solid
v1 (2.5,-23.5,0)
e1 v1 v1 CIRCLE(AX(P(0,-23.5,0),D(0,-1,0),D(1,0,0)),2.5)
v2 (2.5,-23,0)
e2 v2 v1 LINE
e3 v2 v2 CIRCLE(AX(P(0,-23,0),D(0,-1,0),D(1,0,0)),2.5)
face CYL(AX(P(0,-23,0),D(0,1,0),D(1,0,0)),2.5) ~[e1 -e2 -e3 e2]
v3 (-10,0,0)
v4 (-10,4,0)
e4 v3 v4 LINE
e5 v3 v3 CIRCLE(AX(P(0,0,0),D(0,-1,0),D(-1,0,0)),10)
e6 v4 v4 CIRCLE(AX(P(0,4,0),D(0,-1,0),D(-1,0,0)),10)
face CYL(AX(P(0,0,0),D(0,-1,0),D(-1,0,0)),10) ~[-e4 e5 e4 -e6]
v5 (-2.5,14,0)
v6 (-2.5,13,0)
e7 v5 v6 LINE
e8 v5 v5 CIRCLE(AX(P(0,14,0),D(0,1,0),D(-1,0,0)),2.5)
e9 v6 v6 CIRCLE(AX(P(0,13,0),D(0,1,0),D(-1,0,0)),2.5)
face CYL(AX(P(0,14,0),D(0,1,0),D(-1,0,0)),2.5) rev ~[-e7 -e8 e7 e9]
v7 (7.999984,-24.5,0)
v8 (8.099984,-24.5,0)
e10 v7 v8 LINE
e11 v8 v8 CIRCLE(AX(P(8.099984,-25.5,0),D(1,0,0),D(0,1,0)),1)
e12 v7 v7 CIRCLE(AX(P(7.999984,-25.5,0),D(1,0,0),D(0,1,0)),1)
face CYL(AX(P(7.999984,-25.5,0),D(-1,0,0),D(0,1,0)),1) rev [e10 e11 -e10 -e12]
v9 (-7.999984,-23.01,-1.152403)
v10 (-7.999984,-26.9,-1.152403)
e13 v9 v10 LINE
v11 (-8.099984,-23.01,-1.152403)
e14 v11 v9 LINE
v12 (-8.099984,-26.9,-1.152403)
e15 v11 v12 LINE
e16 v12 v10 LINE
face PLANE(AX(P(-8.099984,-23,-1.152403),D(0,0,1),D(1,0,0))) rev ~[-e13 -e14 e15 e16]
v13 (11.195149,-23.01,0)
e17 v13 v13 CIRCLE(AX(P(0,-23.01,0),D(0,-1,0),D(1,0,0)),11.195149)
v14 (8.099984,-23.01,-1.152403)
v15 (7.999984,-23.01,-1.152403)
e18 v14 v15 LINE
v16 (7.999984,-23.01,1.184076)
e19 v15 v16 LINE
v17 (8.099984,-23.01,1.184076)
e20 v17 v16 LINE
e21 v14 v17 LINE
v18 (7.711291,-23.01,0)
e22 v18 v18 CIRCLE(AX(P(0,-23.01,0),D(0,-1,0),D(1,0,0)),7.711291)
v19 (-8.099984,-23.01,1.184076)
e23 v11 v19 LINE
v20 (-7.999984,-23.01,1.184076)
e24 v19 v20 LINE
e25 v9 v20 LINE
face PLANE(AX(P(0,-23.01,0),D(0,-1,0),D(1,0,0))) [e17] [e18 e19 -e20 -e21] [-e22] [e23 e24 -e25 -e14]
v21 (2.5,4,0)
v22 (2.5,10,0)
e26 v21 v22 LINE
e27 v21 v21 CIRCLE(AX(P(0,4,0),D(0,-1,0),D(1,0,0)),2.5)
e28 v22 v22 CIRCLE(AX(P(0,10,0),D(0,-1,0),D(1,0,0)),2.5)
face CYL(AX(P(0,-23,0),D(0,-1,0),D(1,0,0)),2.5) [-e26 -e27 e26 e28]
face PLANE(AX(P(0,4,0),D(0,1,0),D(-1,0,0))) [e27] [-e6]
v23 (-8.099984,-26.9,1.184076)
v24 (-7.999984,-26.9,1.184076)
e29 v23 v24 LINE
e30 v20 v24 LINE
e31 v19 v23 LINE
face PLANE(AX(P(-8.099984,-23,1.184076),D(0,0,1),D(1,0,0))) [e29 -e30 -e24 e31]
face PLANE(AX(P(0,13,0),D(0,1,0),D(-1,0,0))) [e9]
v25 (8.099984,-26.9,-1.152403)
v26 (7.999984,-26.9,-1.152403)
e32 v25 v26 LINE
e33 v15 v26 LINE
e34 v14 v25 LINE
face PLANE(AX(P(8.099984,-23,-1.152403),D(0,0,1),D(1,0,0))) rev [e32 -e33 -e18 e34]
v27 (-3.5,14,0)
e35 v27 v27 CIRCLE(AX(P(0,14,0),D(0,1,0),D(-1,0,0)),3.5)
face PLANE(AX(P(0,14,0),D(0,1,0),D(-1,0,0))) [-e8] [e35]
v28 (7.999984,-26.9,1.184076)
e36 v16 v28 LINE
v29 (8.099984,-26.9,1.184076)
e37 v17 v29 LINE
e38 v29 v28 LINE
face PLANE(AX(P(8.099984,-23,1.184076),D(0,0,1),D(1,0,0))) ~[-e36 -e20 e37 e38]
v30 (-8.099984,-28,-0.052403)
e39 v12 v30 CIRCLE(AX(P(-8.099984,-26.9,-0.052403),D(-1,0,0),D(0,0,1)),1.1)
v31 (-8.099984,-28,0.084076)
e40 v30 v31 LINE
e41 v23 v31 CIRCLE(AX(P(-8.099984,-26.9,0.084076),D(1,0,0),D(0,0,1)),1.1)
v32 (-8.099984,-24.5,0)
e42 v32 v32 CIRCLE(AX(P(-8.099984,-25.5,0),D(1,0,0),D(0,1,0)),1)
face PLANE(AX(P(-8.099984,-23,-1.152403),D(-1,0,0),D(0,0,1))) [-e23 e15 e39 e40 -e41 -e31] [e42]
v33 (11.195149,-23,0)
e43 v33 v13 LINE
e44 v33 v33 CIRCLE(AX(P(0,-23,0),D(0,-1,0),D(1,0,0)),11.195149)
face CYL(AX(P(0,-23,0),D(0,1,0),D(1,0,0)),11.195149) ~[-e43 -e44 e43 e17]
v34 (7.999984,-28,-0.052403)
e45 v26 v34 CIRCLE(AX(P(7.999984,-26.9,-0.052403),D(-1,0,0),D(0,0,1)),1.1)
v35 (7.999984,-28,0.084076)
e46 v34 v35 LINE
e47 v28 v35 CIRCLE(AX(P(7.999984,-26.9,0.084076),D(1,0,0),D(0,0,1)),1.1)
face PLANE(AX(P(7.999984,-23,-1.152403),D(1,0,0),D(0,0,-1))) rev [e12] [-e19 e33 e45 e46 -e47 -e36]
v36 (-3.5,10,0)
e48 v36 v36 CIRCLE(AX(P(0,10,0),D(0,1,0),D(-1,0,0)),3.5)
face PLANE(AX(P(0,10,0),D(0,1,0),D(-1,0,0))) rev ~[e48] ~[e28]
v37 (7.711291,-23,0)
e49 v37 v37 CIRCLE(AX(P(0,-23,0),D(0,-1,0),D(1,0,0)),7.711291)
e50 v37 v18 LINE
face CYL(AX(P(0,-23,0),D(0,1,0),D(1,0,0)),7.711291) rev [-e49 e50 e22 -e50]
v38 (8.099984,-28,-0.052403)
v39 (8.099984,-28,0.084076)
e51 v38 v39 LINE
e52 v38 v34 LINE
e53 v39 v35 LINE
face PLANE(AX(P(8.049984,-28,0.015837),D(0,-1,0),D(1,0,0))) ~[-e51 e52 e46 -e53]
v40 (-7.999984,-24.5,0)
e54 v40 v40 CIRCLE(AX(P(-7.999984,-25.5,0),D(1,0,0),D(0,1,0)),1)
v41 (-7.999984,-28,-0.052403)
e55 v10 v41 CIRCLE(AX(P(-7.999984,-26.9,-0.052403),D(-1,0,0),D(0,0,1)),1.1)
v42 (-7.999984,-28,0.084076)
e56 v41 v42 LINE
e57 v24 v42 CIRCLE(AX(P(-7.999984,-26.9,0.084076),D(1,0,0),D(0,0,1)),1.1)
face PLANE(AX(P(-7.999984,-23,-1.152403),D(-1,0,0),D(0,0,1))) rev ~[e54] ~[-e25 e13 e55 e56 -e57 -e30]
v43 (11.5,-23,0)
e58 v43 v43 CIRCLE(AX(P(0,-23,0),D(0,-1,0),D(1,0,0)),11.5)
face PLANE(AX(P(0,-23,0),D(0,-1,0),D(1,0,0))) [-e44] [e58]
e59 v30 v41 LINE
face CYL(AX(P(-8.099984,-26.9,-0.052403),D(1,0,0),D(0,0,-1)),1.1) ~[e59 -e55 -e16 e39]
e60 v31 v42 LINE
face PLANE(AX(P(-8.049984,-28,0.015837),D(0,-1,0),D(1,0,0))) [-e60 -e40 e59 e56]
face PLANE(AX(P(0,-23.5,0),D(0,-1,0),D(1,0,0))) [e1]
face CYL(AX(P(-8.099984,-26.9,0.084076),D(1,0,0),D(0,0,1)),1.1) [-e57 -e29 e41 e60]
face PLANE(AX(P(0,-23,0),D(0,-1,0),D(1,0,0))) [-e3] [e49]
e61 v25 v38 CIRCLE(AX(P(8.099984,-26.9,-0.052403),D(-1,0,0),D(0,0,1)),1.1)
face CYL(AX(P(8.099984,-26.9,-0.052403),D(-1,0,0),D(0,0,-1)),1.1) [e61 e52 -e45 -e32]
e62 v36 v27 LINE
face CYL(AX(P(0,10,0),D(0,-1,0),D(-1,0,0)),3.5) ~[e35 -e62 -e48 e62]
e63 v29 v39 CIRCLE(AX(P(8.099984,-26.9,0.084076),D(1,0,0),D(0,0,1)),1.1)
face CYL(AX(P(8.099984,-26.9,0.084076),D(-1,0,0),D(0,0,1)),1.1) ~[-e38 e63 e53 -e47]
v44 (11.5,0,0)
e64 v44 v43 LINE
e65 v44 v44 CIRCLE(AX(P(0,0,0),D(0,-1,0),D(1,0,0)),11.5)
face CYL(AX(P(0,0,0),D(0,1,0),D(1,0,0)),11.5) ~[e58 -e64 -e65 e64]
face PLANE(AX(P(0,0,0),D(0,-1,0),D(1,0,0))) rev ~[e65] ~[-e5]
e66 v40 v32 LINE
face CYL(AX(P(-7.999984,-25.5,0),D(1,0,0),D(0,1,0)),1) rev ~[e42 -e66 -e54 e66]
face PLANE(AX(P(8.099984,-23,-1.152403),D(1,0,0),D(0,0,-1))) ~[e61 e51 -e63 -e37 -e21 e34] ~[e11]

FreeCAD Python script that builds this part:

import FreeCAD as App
import Part
import Sketcher


def edges_at(feature, points):
    """Names of the edges that pass closest to the given points."""
    edges = feature.Shape.Edges
    near = lambda p: min(range(len(edges)), key=lambda i: edges[i].distToShape(Part.Vertex(*p))[0])
    return sorted({f"Edge{near(p) + 1}" for p in points})

doc = App.newDocument("Part")
params = doc.addObject("Spreadsheet::Sheet", "Params")
for row, (alias, value) in enumerate([
    ("sketch1_diameter", "23 mm"),
    ("pad1_length", "23 mm"),
    ("sketch2_diameter", "20 mm"),
    ("pad2_length", "4 mm"),
    ("sketch3_width", "0.1 mm"),
    ("pad3_length", "5 mm"),
    ("sketch4_diameter", "2 mm"),
    ("pocket1_length", "25 mm"),
    ("fillet_radius", "1.1 mm"),
    ("sketch5_diameter", "5 mm"),
    ("pad4_length", "33 mm"),
    ("pad5_length", "0.01 mm"),
    ("sketch7_diameter", "5 mm"),
    ("pad6_length", "0.5 mm"),
    ("sketch8_diameter", "7 mm"),
    ("pad7_length", "4 mm"),
    ("sketch9_diameter", "5 mm"),
    ("pocket2_length", "1 mm"),
], start=1):
    params.set(f"A{row}", alias)
    params.set(f"B{row}", "=" + value)
    params.setAlias(f"B{row}", alias)

body = doc.addObject("PartDesign::Body", "Body")

# Sketch on XZ plane
sketch1 = body.newObject("Sketcher::SketchObject", "Sketch")
sketch1.AttachmentSupport = (doc.getObject("XZ_Plane"), [""])
sketch1.MapMode = "FlatFace"
sketch1.addGeometry(Part.Circle(App.Vector(0, 0, 0), App.Vector(0, 0, 1), 12), False)
sketch1.addConstraint(Sketcher.Constraint("Coincident", 0, 3, -1, 1))
sketch1.addConstraint(Sketcher.Constraint("Diameter", 0, 23.0))
sketch1.setExpression("Constraints[1]", "Params.sketch1_diameter")
pad1 = body.newObject("PartDesign::Pad", "Pad")
pad1.Profile = sketch1
pad1.setExpression("Length", "Params.pad1_length")

# Sketch on XZ plane
sketch2 = body.newObject("Sketcher::SketchObject", "Sketch001")
sketch2.AttachmentSupport = (doc.getObject("XZ_Plane"), [""])
sketch2.MapMode = "FlatFace"
sketch2.addGeometry(Part.Circle(App.Vector(0, 0, 0), App.Vector(0, 0, 1), 10), False)
sketch2.addConstraint(Sketcher.Constraint("Coincident", 0, 3, -1, 1))
sketch2.addConstraint(Sketcher.Constraint("Diameter", 0, 20.0))
sketch2.setExpression("Constraints[1]", "Params.sketch2_diameter")
pad2 = body.newObject("PartDesign::Pad", "Pad001")
pad2.Profile = sketch2
pad2.setExpression("Length", "Params.pad2_length")
pad2.Reversed = True

# Sketch on XZ plane
sketch3 = body.newObject("Sketcher::SketchObject", "Sketch002")
sketch3.AttachmentSupport = (doc.getObject("XZ_Plane"), [""])
sketch3.MapMode = "FlatFace"
sketch3.AttachmentOffset = App.Placement(App.Vector(0, 0, 23), App.Rotation())
sketch3.addGeometry(Part.LineSegment(App.Vector(-8.1, 1.18, 0), App.Vector(-8.1, -1.15, 0)), False)
sketch3.addGeometry(Part.LineSegment(App.Vector(-8.1, -1.15, 0), App.Vector(-8, -1.15, 0)), False)
sketch3.addGeometry(Part.LineSegment(App.Vector(-8, -1.15, 0), App.Vector(-8, 1.18, 0)), False)
sketch3.addGeometry(Part.LineSegment(App.Vector(-8, 1.18, 0), App.Vector(-8.1, 1.18, 0)), False)
sketch3.addConstraint(Sketcher.Constraint("Coincident", 0, 2, 1, 1))
sketch3.addConstraint(Sketcher.Constraint("Coincident", 1, 2, 2, 1))
sketch3.addConstraint(Sketcher.Constraint("Coincident", 2, 2, 3, 1))
sketch3.addConstraint(Sketcher.Constraint("Coincident", 3, 2, 0, 1))
sketch3.addConstraint(Sketcher.Constraint("Vertical", 0))
sketch3.addConstraint(Sketcher.Constraint("Horizontal", 1))
sketch3.addConstraint(Sketcher.Constraint("Vertical", 2))
sketch3.addConstraint(Sketcher.Constraint("Horizontal", 3))
sketch3.addConstraint(Sketcher.Constraint("DistanceX", 1, 1, 1, 2, 0.1))
sketch3.addConstraint(Sketcher.Constraint("DistanceY", 0, 2, 0, 1, 2.33648))
sketch3.addConstraint(Sketcher.Constraint("DistanceX", 0, 2, -1, 1, 8.099984))
sketch3.addConstraint(Sketcher.Constraint("DistanceY", 0, 2, -1, 1, 1.152403))
sketch3.setExpression("Constraints[8]", "Params.sketch3_width")
pad3 = body.newObject("PartDesign::Pad", "Pad002")
pad3.Profile = sketch3
pad3.setExpression("Length", "Params.pad3_length")

# Sketch on YZ plane
sketch4 = body.newObject("Sketcher::SketchObject", "Sketch003")
sketch4.AttachmentSupport = (doc.getObject("YZ_Plane"), [""])
sketch4.MapMode = "FlatFace"
sketch4.AttachmentOffset = App.Placement(App.Vector(0, 0, -7.999984), App.Rotation())
sketch4.addGeometry(Part.Circle(App.Vector(-25.5, 0, 0), App.Vector(0, 0, 1), 1), False)
sketch4.addConstraint(Sketcher.Constraint("PointOnObject", 0, 3, -1))
sketch4.addConstraint(Sketcher.Constraint("Diameter", 0, 2.0))
sketch4.addConstraint(Sketcher.Constraint("DistanceX", 0, 3, -1, 1, 25.5))
sketch4.setExpression("Constraints[1]", "Params.sketch4_diameter")
pocket1 = body.newObject("PartDesign::Pocket", "Pocket")
pocket1.Profile = sketch4
pocket1.setExpression("Length", "Params.pocket1_length")
doc.recompute()

fillet = body.newObject("PartDesign::Fillet", "Fillet")
fillet.Base = (pocket1, edges_at(pocket1, [(-8.05, -28, -1.152), (-8.05, -28, 1.184)]))
fillet.setExpression("Radius", "Params.fillet_radius")
body2 = doc.addObject("PartDesign::Body", "Body001")
doc.recompute()

body2.BaseFeature = body
doc.recompute()

mirroring = doc.addObject("Part::Mirroring", "Mirroring")
mirroring.Source = body
mirroring.Base = App.Vector(0, 0, 0)
mirroring.Normal = App.Vector(1, 0, 0)
body3 = doc.addObject("PartDesign::Body", "Body002")
body3.BaseFeature = mirroring
boolean = body2.newObject("PartDesign::Boolean", "Boolean")
boolean.Type = "Fuse"
boolean.addObjects([body3])
doc.recompute()

# Sketch on XZ plane
sketch5 = body2.newObject("Sketcher::SketchObject", "Sketch004")
sketch5.AttachmentSupport = (doc.getObject("XZ_Plane001"), [""])
sketch5.MapMode = "FlatFace"
sketch5.AttachmentOffset = App.Placement(App.Vector(0, 0, 23), App.Rotation())
sketch5.addGeometry(Part.Circle(App.Vector(0, 0, 0), App.Vector(0, 0, 1), 2.5), False)
sketch5.addConstraint(Sketcher.Constraint("Coincident", 0, 3, -1, 1))
sketch5.addConstraint(Sketcher.Constraint("Diameter", 0, 5.0))
sketch5.setExpression("Constraints[1]", "Params.sketch5_diameter")
pad4 = body2.newObject("PartDesign::Pad", "Pad003")
pad4.Profile = sketch5
pad4.setExpression("Length", "Params.pad4_length")
pad4.Reversed = True

# Sketch on XZ plane
sketch6 = body2.newObject("Sketcher::SketchObject", "Sketch005")
sketch6.AttachmentSupport = (doc.getObject("XZ_Plane001"), [""])
sketch6.MapMode = "FlatFace"
sketch6.AttachmentOffset = App.Placement(App.Vector(0, 0, 23), App.Rotation())
sketch6.addGeometry(Part.Circle(App.Vector(0, 0, 0), App.Vector(0, 0, 1), 11), False)
sketch6.addGeometry(Part.Circle(App.Vector(0, 0, 0), App.Vector(0, 0, 1), 8), False)
sketch6.addConstraint(Sketcher.Constraint("Coincident", 0, 3, -1, 1))
sketch6.addConstraint(Sketcher.Constraint("Coincident", 1, 3, -1, 1))
sketch6.addConstraint(Sketcher.Constraint("Diameter", 0, 22.390297))
sketch6.addConstraint(Sketcher.Constraint("Diameter", 1, 15.422583))
pad5 = body2.newObject("PartDesign::Pad", "Pad004")
pad5.Profile = sketch6
pad5.setExpression("Length", "Params.pad5_length")

# Sketch on XZ plane
sketch7 = body2.newObject("Sketcher::SketchObject", "Sketch006")
sketch7.AttachmentSupport = (doc.getObject("XZ_Plane001"), [""])
sketch7.MapMode = "FlatFace"
sketch7.AttachmentOffset = App.Placement(App.Vector(0, 0, 23), App.Rotation())
sketch7.addGeometry(Part.Circle(App.Vector(0, 0, 0), App.Vector(0, 0, 1), 2.5), False)
sketch7.addConstraint(Sketcher.Constraint("Coincident", 0, 3, -1, 1))
sketch7.addConstraint(Sketcher.Constraint("Diameter", 0, 5.0))
sketch7.setExpression("Constraints[1]", "Params.sketch7_diameter")
pad6 = body2.newObject("PartDesign::Pad", "Pad005")
pad6.Profile = sketch7
pad6.setExpression("Length", "Params.pad6_length")

# Sketch on XZ plane
sketch8 = body2.newObject("Sketcher::SketchObject", "Sketch007")
sketch8.AttachmentSupport = (doc.getObject("XZ_Plane001"), [""])
sketch8.MapMode = "FlatFace"
sketch8.AttachmentOffset = App.Placement(App.Vector(0, 0, -10), App.Rotation())
sketch8.addGeometry(Part.Circle(App.Vector(0, 0, 0), App.Vector(0, 0, 1), 3.5), False)
sketch8.addConstraint(Sketcher.Constraint("Coincident", 0, 3, -1, 1))
sketch8.addConstraint(Sketcher.Constraint("Diameter", 0, 7.0))
sketch8.setExpression("Constraints[1]", "Params.sketch8_diameter")
pad7 = body2.newObject("PartDesign::Pad", "Pad006")
pad7.Profile = sketch8
pad7.setExpression("Length", "Params.pad7_length")
pad7.Reversed = True

# Sketch on XZ plane
sketch9 = body2.newObject("Sketcher::SketchObject", "Sketch008")
sketch9.AttachmentSupport = (doc.getObject("XZ_Plane001"), [""])
sketch9.MapMode = "FlatFace"
sketch9.AttachmentOffset = App.Placement(App.Vector(0, 0, -14), App.Rotation())
sketch9.addGeometry(Part.Circle(App.Vector(0, 0, 0), App.Vector(0, 0, 1), 2.5), False)
sketch9.addConstraint(Sketcher.Constraint("Coincident", 0, 3, -1, 1))
sketch9.addConstraint(Sketcher.Constraint("Diameter", 0, 5.0))
sketch9.setExpression("Constraints[1]", "Params.sketch9_diameter")
pocket2 = body2.newObject("PartDesign::Pocket", "Pocket001")
pocket2.Profile = sketch9
pocket2.setExpression("Length", "Params.pocket2_length")
pocket2.Reversed = True
mirroring.Visibility = False

doc.recompute()
